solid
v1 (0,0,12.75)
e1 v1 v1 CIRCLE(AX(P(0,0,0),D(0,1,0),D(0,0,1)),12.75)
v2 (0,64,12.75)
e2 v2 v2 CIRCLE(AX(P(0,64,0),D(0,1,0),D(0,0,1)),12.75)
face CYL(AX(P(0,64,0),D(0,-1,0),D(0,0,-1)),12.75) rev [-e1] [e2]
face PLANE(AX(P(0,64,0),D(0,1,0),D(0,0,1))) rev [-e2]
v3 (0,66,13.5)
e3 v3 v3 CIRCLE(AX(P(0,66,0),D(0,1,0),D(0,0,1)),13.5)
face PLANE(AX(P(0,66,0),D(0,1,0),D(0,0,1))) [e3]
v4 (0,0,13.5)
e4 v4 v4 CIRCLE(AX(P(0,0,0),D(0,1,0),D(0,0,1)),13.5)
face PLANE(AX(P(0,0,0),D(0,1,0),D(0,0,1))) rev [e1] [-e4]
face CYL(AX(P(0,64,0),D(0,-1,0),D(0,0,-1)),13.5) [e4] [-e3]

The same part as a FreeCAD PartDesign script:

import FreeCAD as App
import Part
import Sketcher
Q = App.Units.Quantity

doc = App.newDocument("Part")
body = doc.addObject("PartDesign::Body", "Body")

sketch1 = doc.addObject("Sketcher::SketchObject", "Sketch")
body.addObject(sketch1)
sketch1.AttachmentSupport = (doc.XZ_Plane, [""])
sketch1.MapMode = "FlatFace"
sketch1.addGeometry([
    Part.Circle(App.Vector(0, 0, 0), App.Vector(0, 0, 1), 14),
    Part.Circle(App.Vector(0, 0, 0), App.Vector(0, 0, 1), 13),
], False)
sketch1.addConstraint([
    Sketcher.Constraint("Coincident", 0, 3, -1, 1),
    Sketcher.Constraint("Coincident", 1, 3, -1, 1),
    Sketcher.Constraint("Diameter", 0, Q("27 mm")),
    Sketcher.Constraint("Diameter", 1, Q("25.5 mm")),
])
pad1 = doc.addObject("PartDesign::Pad", "Pad")
body.addObject(pad1)
pad1.Profile = sketch1
pad1.Length = 64
pad1.Reversed = True

sketch2 = doc.addObject("Sketcher::SketchObject", "Sketch001")
body.addObject(sketch2)
sketch2.AttachmentSupport = (doc.XZ_Plane, [""])
sketch2.MapMode = "FlatFace"
sketch2.AttachmentOffset = App.Placement(App.Vector(0, 0, -64), App.Rotation())
sketch2.addGeometry(Part.Circle(App.Vector(0, 0, 0), App.Vector(0, 0, 1), 14), False)
sketch2.addConstraint([
    Sketcher.Constraint("Coincident", 0, 3, -1, 1),
    Sketcher.Constraint("Diameter", 0, Q("27 mm")),
])
pad2 = doc.addObject("PartDesign::Pad", "Pad001")
body.addObject(pad2)
pad2.Profile = sketch2
pad2.Length = 2
pad2.Reversed = True

doc.recompute()
